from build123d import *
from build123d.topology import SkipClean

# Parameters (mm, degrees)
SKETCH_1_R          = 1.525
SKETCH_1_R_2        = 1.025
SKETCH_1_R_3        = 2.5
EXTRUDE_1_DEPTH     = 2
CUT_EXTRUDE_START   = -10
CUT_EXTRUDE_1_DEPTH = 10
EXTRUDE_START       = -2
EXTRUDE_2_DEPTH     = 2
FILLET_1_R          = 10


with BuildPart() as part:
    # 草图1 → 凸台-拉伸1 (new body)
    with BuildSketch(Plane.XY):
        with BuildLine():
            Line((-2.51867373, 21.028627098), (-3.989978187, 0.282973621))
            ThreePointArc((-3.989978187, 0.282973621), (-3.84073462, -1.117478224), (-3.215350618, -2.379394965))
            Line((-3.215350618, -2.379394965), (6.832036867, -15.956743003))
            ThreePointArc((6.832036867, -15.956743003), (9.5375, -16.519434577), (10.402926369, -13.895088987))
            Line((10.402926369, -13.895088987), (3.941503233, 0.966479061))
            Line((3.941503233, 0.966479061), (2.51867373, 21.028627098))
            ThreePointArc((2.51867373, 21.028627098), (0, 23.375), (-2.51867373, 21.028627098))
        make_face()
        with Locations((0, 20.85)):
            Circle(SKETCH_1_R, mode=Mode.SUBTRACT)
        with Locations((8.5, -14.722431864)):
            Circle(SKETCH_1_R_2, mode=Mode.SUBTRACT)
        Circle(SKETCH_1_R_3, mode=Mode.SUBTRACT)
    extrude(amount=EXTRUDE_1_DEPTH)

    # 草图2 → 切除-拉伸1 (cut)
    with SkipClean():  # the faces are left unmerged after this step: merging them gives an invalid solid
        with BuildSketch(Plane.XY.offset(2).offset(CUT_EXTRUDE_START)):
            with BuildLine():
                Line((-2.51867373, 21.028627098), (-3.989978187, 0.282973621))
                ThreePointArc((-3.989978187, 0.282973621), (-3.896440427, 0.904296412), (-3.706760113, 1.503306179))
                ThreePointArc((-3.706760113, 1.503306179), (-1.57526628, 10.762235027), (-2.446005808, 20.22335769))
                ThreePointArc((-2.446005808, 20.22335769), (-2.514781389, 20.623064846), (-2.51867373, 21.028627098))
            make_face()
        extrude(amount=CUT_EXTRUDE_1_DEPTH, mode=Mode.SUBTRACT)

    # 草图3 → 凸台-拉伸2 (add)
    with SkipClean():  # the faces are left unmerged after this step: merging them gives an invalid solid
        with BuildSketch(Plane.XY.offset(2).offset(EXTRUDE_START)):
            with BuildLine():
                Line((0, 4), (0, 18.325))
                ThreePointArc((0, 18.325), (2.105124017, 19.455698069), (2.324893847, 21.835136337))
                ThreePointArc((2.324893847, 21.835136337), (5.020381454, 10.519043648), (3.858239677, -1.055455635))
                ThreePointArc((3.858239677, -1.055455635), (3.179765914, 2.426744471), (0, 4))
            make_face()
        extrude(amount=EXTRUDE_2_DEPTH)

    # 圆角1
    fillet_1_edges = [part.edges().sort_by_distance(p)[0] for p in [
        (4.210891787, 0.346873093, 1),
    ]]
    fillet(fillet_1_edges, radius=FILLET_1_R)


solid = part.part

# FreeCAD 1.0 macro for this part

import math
import FreeCAD as App
import Part
import Sketcher


def edges_at(feature, points):
    """Names of the edges that pass closest to the given points."""
    edges = feature.Shape.Edges
    near = lambda p: min(range(len(edges)), key=lambda i: edges[i].distToShape(Part.Vertex(*p))[0])
    return sorted({f"Edge{near(p) + 1}" for p in points})

doc = App.newDocument("Part")
params = doc.addObject("Spreadsheet::Sheet", "Params")
for row, (alias, value) in enumerate([
    ("sketch1_diameter", "5 mm"),
    ("sketch1_radius", "4 mm"),
    ("sketch1_diameter2", "2.05 mm"),
    ("sketch1_diameter3", "3.05 mm"),
    ("pad1_length", "2 mm"),
    ("sketch2_radius", "4 mm"),
    ("sketch2_radius2", "30 mm"),
    ("pocket1_length", "10 mm"),
    ("sketch3_radius", "4 mm"),
    ("sketch3_radius2", "35 mm"),
    ("pad2_length", "2 mm"),
    ("fillet_radius", "10 mm"),
], start=1):
    params.set(f"A{row}", alias)
    params.set(f"B{row}", "=" + value)
    params.setAlias(f"B{row}", alias)

body = doc.addObject("PartDesign::Body", "Body")

# Sketch on XY plane
sketch1 = doc.addObject("Sketcher::SketchObject", "Sketch")
body.addObject(sketch1)
sketch1.AttachmentSupport = (doc.XY_Plane, [""])
sketch1.MapMode = "FlatFace"
sketch1.addGeometry([
    Part.LineSegment(App.Vector(-2.5, 21, 0), App.Vector(-4, 0.3, 0)),  # 0
    Part.ArcOfCircle(Part.Circle(App.Vector(0, 0, 0), App.Vector(0, 0, 1), 4), math.radians(176), math.radians(217)),  # 1
    Part.LineSegment(App.Vector(-3.2, -2.4, 0), App.Vector(6.8, -16, 0)),  # 2
    Part.ArcOfCircle(Part.Circle(App.Vector(8.5, -14.7, 0), App.Vector(0, 0, 1), 2.1), math.radians(-143), math.radians(23)),  # 3
    Part.LineSegment(App.Vector(10.4, -13.9, 0), App.Vector(3.9, 1, 0)),  # 4
    Part.LineSegment(App.Vector(3.9, 1, 0), App.Vector(2.5, 21, 0)),  # 5
    Part.ArcOfCircle(Part.Circle(App.Vector(0, 20.9, 0), App.Vector(0, 0, 1), 2.5), math.radians(4), math.radians(176)),  # 6
    Part.Circle(App.Vector(0, 0, 0), App.Vector(0, 0, 1), 2.5),  # 7
    Part.Circle(App.Vector(8.5, -14.7, 0), App.Vector(0, 0, 1), 1),  # 8
    Part.Circle(App.Vector(0, 20.9, 0), App.Vector(0, 0, 1), 1.5),  # 9
], False)
sketch1.addConstraint([
    Sketcher.Constraint("Tangent", 0, 2, 1, 1),
    Sketcher.Constraint("Tangent", 1, 2, 2, 1),
    Sketcher.Constraint("Tangent", 2, 2, 3, 1),
    Sketcher.Constraint("Tangent", 3, 2, 4, 1),
    Sketcher.Constraint("Coincident", 4, 2, 5, 1),
    Sketcher.Constraint("Tangent", 5, 2, 6, 1),
    Sketcher.Constraint("Tangent", 6, 2, 0, 1),
    Sketcher.Constraint("Coincident", 1, 3, -1, 1),
    Sketcher.Constraint("Coincident", 7, 3, -1, 1),
    Sketcher.Constraint("Coincident", 8, 3, 3, 3),
    Sketcher.Constraint("Coincident", 9, 3, 6, 3),
    Sketcher.Constraint("Symmetric", 5, 2, 6, 2, -2),
    Sketcher.Constraint("Diameter", 7, 5.0),
    Sketcher.Constraint("Radius", 1, 4.0),
    Sketcher.Constraint("Diameter", 8, 2.05),
    Sketcher.Constraint("Diameter", 9, 3.05),
    Sketcher.Constraint("Radius", 3, 2.075),
    Sketcher.Constraint("Radius", 6, 2.525),
    Sketcher.Constraint("DistanceX", -1, 1, 3, 3, 8.5),
    Sketcher.Constraint("DistanceY", -1, 1, 6, 3, 20.85),
    Sketcher.Constraint("Distance", 2, 16.890659),
    Sketcher.Constraint("Distance", 5, 20.112539),
])
sketch1.setExpression("Constraints[12]", "Params.sketch1_diameter")
sketch1.setExpression("Constraints[13]", "Params.sketch1_radius")
sketch1.setExpression("Constraints[14]", "Params.sketch1_diameter2")
sketch1.setExpression("Constraints[15]", "Params.sketch1_diameter3")
pad1 = doc.addObject("PartDesign::Pad", "Pad")
body.addObject(pad1)
pad1.Profile = sketch1
pad1.setExpression("Length", "Params.pad1_length")

# Sketch on XY plane
sketch2 = doc.addObject("Sketcher::SketchObject", "Sketch001")
body.addObject(sketch2)
sketch2.AttachmentSupport = (doc.XY_Plane, [""])
sketch2.MapMode = "FlatFace"
sketch2.AttachmentOffset = App.Placement(App.Vector(0, 0, -8), App.Rotation())
sketch2.addGeometry([
    Part.LineSegment(App.Vector(-2.5, 21, 0), App.Vector(-4, 0.3, 0)),
    Part.ArcOfCircle(Part.Circle(App.Vector(0, 0, 0), App.Vector(0, 0, 1), 4), math.radians(157.92), math.radians(175.94)),
    Part.ArcOfCircle(Part.Circle(App.Vector(-31.5, 12.8, 0), App.Vector(0, 0, 1), 30), math.radians(-22), math.radians(14)),
    Part.ArcOfCircle(Part.Circle(App.Vector(0, 20.9, 0), App.Vector(0, 0, 1), 2.5), math.radians(175.94), math.radians(194.37)),
], False)
sketch2.addConstraint([
    Sketcher.Constraint("Tangent", 0, 2, 1, 2),
    Sketcher.Constraint("Tangent", 1, 1, 2, 1),
    Sketcher.Constraint("Tangent", 2, 2, 3, 2),
    Sketcher.Constraint("Tangent", 3, 1, 0, 1),
    Sketcher.Constraint("Coincident", 1, 3, -1, 1),
    Sketcher.Constraint("PointOnObject", 3, 3, -2),
    Sketcher.Constraint("Radius", 1, 4.0),
    Sketcher.Constraint("Radius", 2, 30.0),
    Sketcher.Constraint("Radius", 3, 2.525),
    Sketcher.Constraint("DistanceY", -1, 1, 3, 3, 20.85),
])
sketch2.setExpression("Constraints[6]", "Params.sketch2_radius")
sketch2.setExpression("Constraints[7]", "Params.sketch2_radius2")
pocket1 = doc.addObject("PartDesign::Pocket", "Pocket")
body.addObject(pocket1)
pocket1.Profile = sketch2
pocket1.setExpression("Length", "Params.pocket1_length")
pocket1.Reversed = True

# Sketch on XY plane
sketch3 = doc.addObject("Sketcher::SketchObject", "Sketch002")
body.addObject(sketch3)
sketch3.AttachmentSupport = (doc.XY_Plane, [""])
sketch3.MapMode = "FlatFace"
sketch3.addGeometry([
    Part.LineSegment(App.Vector(0, 18.3, 0), App.Vector(0, 4, 0)),
    Part.ArcOfCircle(Part.Circle(App.Vector(0, 0, 0), App.Vector(0, 0, 1), 4), math.radians(-15), math.radians(90)),
    Part.ArcOfCircle(Part.Circle(App.Vector(-29.9, 8.2, 0), App.Vector(0, 0, 1), 35), math.radians(-15), math.radians(23)),
    Part.ArcOfCircle(Part.Circle(App.Vector(0, 20.9, 0), App.Vector(0, 0, 1), 2.5), math.radians(-90), math.radians(23)),
], False)
sketch3.addConstraint([
    Sketcher.Constraint("Coincident", 0, 2, 1, 2),
    Sketcher.Constraint("Tangent", 1, 1, 2, 1),
    Sketcher.Constraint("Tangent", 2, 2, 3, 2),
    Sketcher.Constraint("Coincident", 3, 1, 0, 1),
    Sketcher.Constraint("Vertical", 0),
    Sketcher.Constraint("Coincident", 1, 3, -1, 1),
    Sketcher.Constraint("PointOnObject", 3, 3, -2),
    Sketcher.Constraint("PointOnObject", 0, 2, -2),
    Sketcher.Constraint("Radius", 1, 4.0),
    Sketcher.Constraint("Radius", 2, 35.0),
    Sketcher.Constraint("Radius", 3, 2.525),
    Sketcher.Constraint("DistanceY", 0, 2, 0, 1, 14.325),
])
sketch3.setExpression("Constraints[8]", "Params.sketch3_radius")
sketch3.setExpression("Constraints[9]", "Params.sketch3_radius2")
pad2 = doc.addObject("PartDesign::Pad", "Pad001")
body.addObject(pad2)
pad2.Profile = sketch3
pad2.setExpression("Length", "Params.pad2_length")
doc.recompute()

fillet = doc.addObject("PartDesign::Fillet", "Fillet")
body.addObject(fillet)
fillet.Base = (pad2, edges_at(pad2, [(4.211, 0.347, 1)]))
fillet.setExpression("Radius", "Params.fillet_radius")

doc.recompute()
